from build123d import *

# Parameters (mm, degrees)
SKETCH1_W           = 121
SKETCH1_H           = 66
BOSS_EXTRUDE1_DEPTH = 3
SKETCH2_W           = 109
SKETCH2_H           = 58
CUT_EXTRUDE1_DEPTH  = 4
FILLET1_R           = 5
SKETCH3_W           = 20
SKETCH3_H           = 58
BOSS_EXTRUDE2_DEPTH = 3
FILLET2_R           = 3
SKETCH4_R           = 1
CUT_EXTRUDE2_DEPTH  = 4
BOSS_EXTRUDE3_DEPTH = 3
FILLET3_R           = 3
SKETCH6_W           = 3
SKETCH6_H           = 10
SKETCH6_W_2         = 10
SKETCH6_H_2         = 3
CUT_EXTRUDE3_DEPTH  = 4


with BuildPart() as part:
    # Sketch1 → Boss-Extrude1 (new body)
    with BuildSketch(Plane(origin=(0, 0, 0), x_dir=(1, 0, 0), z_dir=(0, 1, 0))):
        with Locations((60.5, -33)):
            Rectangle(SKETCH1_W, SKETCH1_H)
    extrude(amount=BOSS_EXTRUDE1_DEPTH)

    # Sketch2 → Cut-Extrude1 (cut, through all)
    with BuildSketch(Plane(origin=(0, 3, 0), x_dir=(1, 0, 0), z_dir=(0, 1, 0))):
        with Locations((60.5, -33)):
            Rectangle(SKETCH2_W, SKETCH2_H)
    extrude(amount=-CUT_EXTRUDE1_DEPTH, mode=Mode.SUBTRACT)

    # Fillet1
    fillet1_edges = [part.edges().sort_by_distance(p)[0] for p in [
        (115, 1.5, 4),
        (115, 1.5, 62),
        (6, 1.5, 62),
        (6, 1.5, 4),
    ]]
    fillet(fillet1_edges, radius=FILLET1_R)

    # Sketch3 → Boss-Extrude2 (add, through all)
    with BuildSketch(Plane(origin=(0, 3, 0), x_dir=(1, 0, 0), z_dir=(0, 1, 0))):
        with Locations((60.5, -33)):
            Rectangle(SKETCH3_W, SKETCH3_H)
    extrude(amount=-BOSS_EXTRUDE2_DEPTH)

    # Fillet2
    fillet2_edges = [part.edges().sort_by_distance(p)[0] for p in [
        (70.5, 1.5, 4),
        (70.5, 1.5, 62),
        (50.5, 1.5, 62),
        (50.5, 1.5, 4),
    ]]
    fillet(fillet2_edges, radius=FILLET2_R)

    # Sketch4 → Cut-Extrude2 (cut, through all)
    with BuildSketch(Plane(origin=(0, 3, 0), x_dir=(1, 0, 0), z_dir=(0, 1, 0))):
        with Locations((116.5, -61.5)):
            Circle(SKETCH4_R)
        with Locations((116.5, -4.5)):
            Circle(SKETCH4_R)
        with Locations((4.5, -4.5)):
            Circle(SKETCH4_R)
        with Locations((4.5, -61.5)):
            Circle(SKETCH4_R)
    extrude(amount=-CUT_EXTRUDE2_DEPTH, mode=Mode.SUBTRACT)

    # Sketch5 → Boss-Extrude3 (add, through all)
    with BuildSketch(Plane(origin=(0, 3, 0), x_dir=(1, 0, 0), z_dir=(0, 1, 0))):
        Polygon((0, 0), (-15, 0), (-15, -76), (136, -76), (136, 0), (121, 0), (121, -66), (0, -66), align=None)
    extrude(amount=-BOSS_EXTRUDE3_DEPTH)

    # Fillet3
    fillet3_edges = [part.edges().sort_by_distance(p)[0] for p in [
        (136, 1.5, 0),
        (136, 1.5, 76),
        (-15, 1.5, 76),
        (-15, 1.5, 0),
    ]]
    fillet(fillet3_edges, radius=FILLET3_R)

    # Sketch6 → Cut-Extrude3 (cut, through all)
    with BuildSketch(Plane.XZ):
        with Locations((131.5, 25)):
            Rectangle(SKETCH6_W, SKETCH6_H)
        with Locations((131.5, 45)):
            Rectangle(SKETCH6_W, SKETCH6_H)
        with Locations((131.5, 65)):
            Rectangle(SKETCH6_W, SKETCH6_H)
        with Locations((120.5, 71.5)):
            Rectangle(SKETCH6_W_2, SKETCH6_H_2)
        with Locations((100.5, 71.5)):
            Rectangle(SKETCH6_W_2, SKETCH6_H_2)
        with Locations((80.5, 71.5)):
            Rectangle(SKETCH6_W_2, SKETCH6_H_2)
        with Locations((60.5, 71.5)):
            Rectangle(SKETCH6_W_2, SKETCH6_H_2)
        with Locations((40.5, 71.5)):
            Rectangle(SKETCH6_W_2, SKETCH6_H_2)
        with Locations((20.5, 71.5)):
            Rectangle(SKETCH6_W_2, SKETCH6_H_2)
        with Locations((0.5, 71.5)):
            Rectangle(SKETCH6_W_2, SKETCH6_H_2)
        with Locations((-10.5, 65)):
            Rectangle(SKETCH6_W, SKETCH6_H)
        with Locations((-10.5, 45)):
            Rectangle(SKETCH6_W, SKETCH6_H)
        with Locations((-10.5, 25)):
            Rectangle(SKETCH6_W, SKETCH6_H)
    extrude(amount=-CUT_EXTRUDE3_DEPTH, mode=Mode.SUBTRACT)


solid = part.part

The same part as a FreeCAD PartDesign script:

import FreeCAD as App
import Part
import Sketcher
Q = App.Units.Quantity


def edges_at(feature, points):
    """Names of the edges that pass closest to the given points."""
    edges = feature.Shape.Edges
    near = lambda p: min(range(len(edges)), key=lambda i: edges[i].distToShape(Part.Vertex(*p))[0])
    return sorted({f"Edge{near(p) + 1}" for p in points})

doc = App.newDocument("Part")
body = doc.addObject("PartDesign::Body", "Body")

# Sketch on XZ plane
sketch1 = body.newObject("Sketcher::SketchObject", "Sketch")
sketch1.AttachmentSupport = (doc.getObject("XZ_Plane"), [""])
sketch1.MapMode = "FlatFace"
sketch1.addGeometry([
    Part.LineSegment(App.Vector(0, 0, 0), App.Vector(0, 66, 0)),
    Part.LineSegment(App.Vector(0, 66, 0), App.Vector(121, 66, 0)),
    Part.LineSegment(App.Vector(121, 66, 0), App.Vector(121, 0, 0)),
    Part.LineSegment(App.Vector(121, 0, 0), App.Vector(0, 0, 0)),
], False)
sketch1.addConstraint([
    Sketcher.Constraint("Coincident", 0, 2, 1, 1),
    Sketcher.Constraint("Coincident", 1, 2, 2, 1),
    Sketcher.Constraint("Coincident", 2, 2, 3, 1),
    Sketcher.Constraint("Coincident", 3, 2, 0, 1),
    Sketcher.Constraint("Vertical", 0),
    Sketcher.Constraint("Horizontal", 1),
    Sketcher.Constraint("Vertical", 2),
    Sketcher.Constraint("Horizontal", 3),
    Sketcher.Constraint("Coincident", 3, 2, -1, 1),
    Sketcher.Constraint("DistanceX", 1, 1, 1, 2, Q("121 mm")),
    Sketcher.Constraint("DistanceY", 0, 1, 0, 2, Q("66 mm")),
])
pad1 = body.newObject("PartDesign::Pad", "Pad")
pad1.Profile = sketch1
pad1.Length = 3
pad1.Reversed = True

# Sketch on XZ plane
sketch2 = body.newObject("Sketcher::SketchObject", "Sketch001")
sketch2.AttachmentSupport = (doc.getObject("XZ_Plane"), [""])
sketch2.MapMode = "FlatFace"
sketch2.AttachmentOffset = App.Placement(App.Vector(0, 0, -3), App.Rotation())
sketch2.addGeometry([
    Part.LineSegment(App.Vector(6, 4, 0), App.Vector(6, 62, 0)),
    Part.LineSegment(App.Vector(6, 62, 0), App.Vector(115, 62, 0)),
    Part.LineSegment(App.Vector(115, 62, 0), App.Vector(115, 4, 0)),
    Part.LineSegment(App.Vector(115, 4, 0), App.Vector(6, 4, 0)),
], False)
sketch2.addConstraint([
    Sketcher.Constraint("Coincident", 0, 2, 1, 1),
    Sketcher.Constraint("Coincident", 1, 2, 2, 1),
    Sketcher.Constraint("Coincident", 2, 2, 3, 1),
    Sketcher.Constraint("Coincident", 3, 2, 0, 1),
    Sketcher.Constraint("Vertical", 0),
    Sketcher.Constraint("Horizontal", 1),
    Sketcher.Constraint("Vertical", 2),
    Sketcher.Constraint("Horizontal", 3),
    Sketcher.Constraint("DistanceX", 1, 1, 1, 2, Q("109 mm")),
    Sketcher.Constraint("DistanceY", 0, 1, 0, 2, Q("58 mm")),
    Sketcher.Constraint("DistanceX", -1, 1, 0, 2, Q("6 mm")),
    Sketcher.Constraint("DistanceY", -1, 1, 0, 2, Q("62 mm")),
])
pocket1 = body.newObject("PartDesign::Pocket", "Pocket")
pocket1.Profile = sketch2
pocket1.Type = "ThroughAll"
pocket1.Reversed = True
doc.recompute()

fillet = body.newObject("PartDesign::Fillet", "Fillet")
fillet.Base = (pocket1, edges_at(pocket1, [
    (115, 1.5, 4),
    (115, 1.5, 62),
    (6, 1.5, 62),
    (6, 1.5, 4),
]))
fillet.Radius = 5

# Sketch on XZ plane
sketch3 = body.newObject("Sketcher::SketchObject", "Sketch002")
sketch3.AttachmentSupport = (doc.getObject("XZ_Plane"), [""])
sketch3.MapMode = "FlatFace"
sketch3.AttachmentOffset = App.Placement(App.Vector(0, 0, -3), App.Rotation())
sketch3.addGeometry([
    Part.LineSegment(App.Vector(50, 4, 0), App.Vector(50, 62, 0)),
    Part.LineSegment(App.Vector(50, 62, 0), App.Vector(70, 62, 0)),
    Part.LineSegment(App.Vector(70, 62, 0), App.Vector(70, 4, 0)),
    Part.LineSegment(App.Vector(70, 4, 0), App.Vector(50, 4, 0)),
], False)
sketch3.addConstraint([
    Sketcher.Constraint("Coincident", 0, 2, 1, 1),
    Sketcher.Constraint("Coincident", 1, 2, 2, 1),
    Sketcher.Constraint("Coincident", 2, 2, 3, 1),
    Sketcher.Constraint("Coincident", 3, 2, 0, 1),
    Sketcher.Constraint("Vertical", 0),
    Sketcher.Constraint("Horizontal", 1),
    Sketcher.Constraint("Vertical", 2),
    Sketcher.Constraint("Horizontal", 3),
    Sketcher.Constraint("DistanceX", 1, 1, 1, 2, Q("20 mm")),
    Sketcher.Constraint("DistanceY", 0, 1, 0, 2, Q("58 mm")),
    Sketcher.Constraint("DistanceY", -1, 1, 0, 2, Q("62 mm")),
    Sketcher.Constraint("DistanceX", -1, 1, 0, 2, Q("50.5 mm")),
])
pad2 = body.newObject("PartDesign::Pad", "Pad001")
pad2.Profile = sketch3
pad2.Length = 3
doc.recompute()

fillet2 = body.newObject("PartDesign::Fillet", "Fillet001")
fillet2.Base = (pad2, edges_at(pad2, [
    (70.5, 1.5, 4),
    (70.5, 1.5, 62),
    (50.5, 1.5, 62),
    (50.5, 1.5, 4),
]))
fillet2.Radius = 3

# Sketch on XZ plane
sketch4 = body.newObject("Sketcher::SketchObject", "Sketch003")
sketch4.AttachmentSupport = (doc.getObject("XZ_Plane"), [""])
sketch4.MapMode = "FlatFace"
sketch4.AttachmentOffset = App.Placement(App.Vector(0, 0, -3), App.Rotation())
sketch4.addGeometry([
    Part.Circle(App.Vector(116.5, 61.5, 0), App.Vector(0, 0, 1), 1),
    Part.Circle(App.Vector(116.5, 4.5, 0), App.Vector(0, 0, 1), 1),
    Part.Circle(App.Vector(4.5, 4.5, 0), App.Vector(0, 0, 1), 1),
    Part.Circle(App.Vector(4.5, 61.5, 0), App.Vector(0, 0, 1), 1),
], False)
sketch4.addConstraint([
    Sketcher.Constraint("Equal", 0, 1),
    Sketcher.Constraint("Equal", 1, 2),
    Sketcher.Constraint("Equal", 2, 3),
    Sketcher.Constraint("Horizontal", 1, 3, 2, 3),
    Sketcher.Constraint("Horizontal", 0, 3, 3, 3),
    Sketcher.Constraint("Vertical", 0, 3, 1, 3),
    Sketcher.Constraint("Vertical", 2, 3, 3, 3),
    Sketcher.Constraint("Diameter", 0, Q("2 mm")),
    Sketcher.Constraint("DistanceY", 1, 3, 0, 3, Q("57 mm")),
    Sketcher.Constraint("DistanceX", 2, 3, 1, 3, Q("112 mm")),
    Sketcher.Constraint("DistanceX", -1, 1, 0, 3, Q("116.5 mm")),
    Sketcher.Constraint("DistanceY", -1, 1, 0, 3, Q("61.5 mm")),
])
pocket2 = body.newObject("PartDesign::Pocket", "Pocket001")
pocket2.Profile = sketch4
pocket2.Type = "ThroughAll"
pocket2.Reversed = True

# Sketch on XZ plane
sketch5 = body.newObject("Sketcher::SketchObject", "Sketch004")
sketch5.AttachmentSupport = (doc.getObject("XZ_Plane"), [""])
sketch5.MapMode = "FlatFace"
sketch5.AttachmentOffset = App.Placement(App.Vector(0, 0, -3), App.Rotation())
sketch5.addGeometry([
    Part.LineSegment(App.Vector(0, 0, 0), App.Vector(-15, 0, 0)),  # 0
    Part.LineSegment(App.Vector(-15, 0, 0), App.Vector(-15, 76, 0)),  # 1
    Part.LineSegment(App.Vector(-15, 76, 0), App.Vector(136, 76, 0)),  # 2
    Part.LineSegment(App.Vector(136, 76, 0), App.Vector(136, 0, 0)),  # 3
    Part.LineSegment(App.Vector(136, 0, 0), App.Vector(121, 0, 0)),  # 4
    Part.LineSegment(App.Vector(121, 0, 0), App.Vector(121, 66, 0)),  # 5
    Part.LineSegment(App.Vector(121, 66, 0), App.Vector(0, 66, 0)),  # 6
    Part.LineSegment(App.Vector(0, 66, 0), App.Vector(0, 0, 0)),  # 7
], False)
sketch5.addConstraint([
    Sketcher.Constraint("Coincident", 0, 2, 1, 1),
    Sketcher.Constraint("Coincident", 1, 2, 2, 1),
    Sketcher.Constraint("Coincident", 2, 2, 3, 1),
    Sketcher.Constraint("Coincident", 3, 2, 4, 1),
    Sketcher.Constraint("Coincident", 4, 2, 5, 1),
    Sketcher.Constraint("Coincident", 5, 2, 6, 1),
    Sketcher.Constraint("Coincident", 6, 2, 7, 1),
    Sketcher.Constraint("Coincident", 7, 2, 0, 1),
    Sketcher.Constraint("Horizontal", 0),
    Sketcher.Constraint("Vertical", 1),
    Sketcher.Constraint("Horizontal", 2),
    Sketcher.Constraint("Vertical", 3),
    Sketcher.Constraint("Horizontal", 4),
    Sketcher.Constraint("Vertical", 5),
    Sketcher.Constraint("Horizontal", 6),
    Sketcher.Constraint("Vertical", 7),
    Sketcher.Constraint("Coincident", 7, 2, -1, 1),
    Sketcher.Constraint("PointOnObject", 3, 2, -1),
    Sketcher.Constraint("Equal", 0, 4),
    Sketcher.Constraint("DistanceX", 0, 2, 0, 1, Q("15 mm")),
    Sketcher.Constraint("DistanceX", 2, 1, 2, 2, Q("151 mm")),
    Sketcher.Constraint("DistanceY", 1, 1, 1, 2, Q("76 mm")),
    Sketcher.Constraint("DistanceY", 5, 1, 5, 2, Q("66 mm")),
])
pad3 = body.newObject("PartDesign::Pad", "Pad002")
pad3.Profile = sketch5
pad3.Type = "UpToLast"
doc.recompute()

fillet3 = body.newObject("PartDesign::Fillet", "Fillet002")
fillet3.Base = (pad3, edges_at(pad3, [
    (136, 1.5, 0),
    (136, 1.5, 76),
    (-15, 1.5, 76),
    (-15, 1.5, 0),
]))
fillet3.Radius = 3

# Sketch on XZ plane
sketch6 = body.newObject("Sketcher::SketchObject", "Sketch005")
sketch6.AttachmentSupport = (doc.getObject("XZ_Plane"), [""])
sketch6.MapMode = "FlatFace"
sketch6.addGeometry([
    Part.LineSegment(App.Vector(130, 30, 0), App.Vector(130, 20, 0)),  # 0
    Part.LineSegment(App.Vector(130, 20, 0), App.Vector(133, 20, 0)),  # 1
    Part.LineSegment(App.Vector(133, 20, 0), App.Vector(133, 30, 0)),  # 2
    Part.LineSegment(App.Vector(133, 30, 0), App.Vector(130, 30, 0)),  # 3
    Part.LineSegment(App.Vector(130, 50, 0), App.Vector(130, 40, 0)),  # 4
    Part.LineSegment(App.Vector(130, 40, 0), App.Vector(133, 40, 0)),  # 5
    Part.LineSegment(App.Vector(133, 40, 0), App.Vector(133, 50, 0)),  # 6
    Part.LineSegment(App.Vector(133, 50, 0), App.Vector(130, 50, 0)),  # 7
    Part.LineSegment(App.Vector(130, 70, 0), App.Vector(130, 60, 0)),  # 8
    Part.LineSegment(App.Vector(130, 60, 0), App.Vector(133, 60, 0)),  # 9
    Part.LineSegment(App.Vector(133, 60, 0), App.Vector(133, 70, 0)),  # 10
    Part.LineSegment(App.Vector(133, 70, 0), App.Vector(130, 70, 0)),  # 11
    Part.LineSegment(App.Vector(115.5, 73, 0), App.Vector(115.5, 70, 0)),  # 12
    Part.LineSegment(App.Vector(115.5, 70, 0), App.Vector(125.5, 70, 0)),  # 13
    Part.LineSegment(App.Vector(125.5, 70, 0), App.Vector(125.5, 73, 0)),  # 14
    Part.LineSegment(App.Vector(125.5, 73, 0), App.Vector(115.5, 73, 0)),  # 15
    Part.LineSegment(App.Vector(95.5, 73, 0), App.Vector(95.5, 70, 0)),  # 16
    Part.LineSegment(App.Vector(95.5, 70, 0), App.Vector(105.5, 70, 0)),  # 17
    Part.LineSegment(App.Vector(105.5, 70, 0), App.Vector(105.5, 73, 0)),  # 18
    Part.LineSegment(App.Vector(105.5, 73, 0), App.Vector(95.5, 73, 0)),  # 19
    Part.LineSegment(App.Vector(75.5, 73, 0), App.Vector(75.5, 70, 0)),  # 20
    Part.LineSegment(App.Vector(75.5, 70, 0), App.Vector(85.5, 70, 0)),  # 21
    Part.LineSegment(App.Vector(85.5, 70, 0), App.Vector(85.5, 73, 0)),  # 22
    Part.LineSegment(App.Vector(85.5, 73, 0), App.Vector(75.5, 73, 0)),  # 23
    Part.LineSegment(App.Vector(55.5, 73, 0), App.Vector(55.5, 70, 0)),  # 24
    Part.LineSegment(App.Vector(55.5, 70, 0), App.Vector(65.5, 70, 0)),  # 25
    Part.LineSegment(App.Vector(65.5, 70, 0), App.Vector(65.5, 73, 0)),  # 26
    Part.LineSegment(App.Vector(65.5, 73, 0), App.Vector(55.5, 73, 0)),  # 27
    Part.LineSegment(App.Vector(35.5, 73, 0), App.Vector(35.5, 70, 0)),  # 28
    Part.LineSegment(App.Vector(35.5, 70, 0), App.Vector(45.5, 70, 0)),  # 29
    Part.LineSegment(App.Vector(45.5, 70, 0), App.Vector(45.5, 73, 0)),  # 30
    Part.LineSegment(App.Vector(45.5, 73, 0), App.Vector(35.5, 73, 0)),  # 31
    Part.LineSegment(App.Vector(15.5, 73, 0), App.Vector(15.5, 70, 0)),  # 32
    Part.LineSegment(App.Vector(15.5, 70, 0), App.Vector(25.5, 70, 0)),  # 33
    Part.LineSegment(App.Vector(25.5, 70, 0), App.Vector(25.5, 73, 0)),  # 34
    Part.LineSegment(App.Vector(25.5, 73, 0), App.Vector(15.5, 73, 0)),  # 35
    Part.LineSegment(App.Vector(-4.5, 73, 0), App.Vector(-4.5, 70, 0)),  # 36
    Part.LineSegment(App.Vector(-4.5, 70, 0), App.Vector(5.5, 70, 0)),  # 37
    Part.LineSegment(App.Vector(5.5, 70, 0), App.Vector(5.5, 73, 0)),  # 38
    Part.LineSegment(App.Vector(5.5, 73, 0), App.Vector(-4.5, 73, 0)),  # 39
    Part.LineSegment(App.Vector(-12, 70, 0), App.Vector(-12, 60, 0)),  # 40
    Part.LineSegment(App.Vector(-12, 60, 0), App.Vector(-9, 60, 0)),  # 41
    Part.LineSegment(App.Vector(-9, 60, 0), App.Vector(-9, 70, 0)),  # 42
    Part.LineSegment(App.Vector(-9, 70, 0), App.Vector(-12, 70, 0)),  # 43
    Part.LineSegment(App.Vector(-12, 50, 0), App.Vector(-12, 40, 0)),  # 44
    Part.LineSegment(App.Vector(-12, 40, 0), App.Vector(-9, 40, 0)),  # 45
    Part.LineSegment(App.Vector(-9, 40, 0), App.Vector(-9, 50, 0)),  # 46
    Part.LineSegment(App.Vector(-9, 50, 0), App.Vector(-12, 50, 0)),  # 47
    Part.LineSegment(App.Vector(-12, 30, 0), App.Vector(-12, 20, 0)),  # 48
    Part.LineSegment(App.Vector(-12, 20, 0), App.Vector(-9, 20, 0)),  # 49
    Part.LineSegment(App.Vector(-9, 20, 0), App.Vector(-9, 30, 0)),  # 50
    Part.LineSegment(App.Vector(-9, 30, 0), App.Vector(-12, 30, 0)),  # 51
], False)
sketch6.addConstraint([
    Sketcher.Constraint("Coincident", 0, 2, 1, 1),
    Sketcher.Constraint("Coincident", 1, 2, 2, 1),
    Sketcher.Constraint("Coincident", 2, 2, 3, 1),
    Sketcher.Constraint("Coincident", 3, 2, 0, 1),
    Sketcher.Constraint("Coincident", 4, 2, 5, 1),
    Sketcher.Constraint("Coincident", 5, 2, 6, 1),
    Sketcher.Constraint("Coincident", 6, 2, 7, 1),
    Sketcher.Constraint("Coincident", 7, 2, 4, 1),
    Sketcher.Constraint("Coincident", 8, 2, 9, 1),
    Sketcher.Constraint("Coincident", 9, 2, 10, 1),
    Sketcher.Constraint("Coincident", 10, 2, 11, 1),
    Sketcher.Constraint("Coincident", 11, 2, 8, 1),
    Sketcher.Constraint("Coincident", 12, 2, 13, 1),
    Sketcher.Constraint("Coincident", 13, 2, 14, 1),
    Sketcher.Constraint("Coincident", 14, 2, 15, 1),
    Sketcher.Constraint("Coincident", 15, 2, 12, 1),
    Sketcher.Constraint("Coincident", 16, 2, 17, 1),
    Sketcher.Constraint("Coincident", 17, 2, 18, 1),
    Sketcher.Constraint("Coincident", 18, 2, 19, 1),
    Sketcher.Constraint("Coincident", 19, 2, 16, 1),
    Sketcher.Constraint("Coincident", 20, 2, 21, 1),
    Sketcher.Constraint("Coincident", 21, 2, 22, 1),
    Sketcher.Constraint("Coincident", 22, 2, 23, 1),
    Sketcher.Constraint("Coincident", 23, 2, 20, 1),
    Sketcher.Constraint("Coincident", 24, 2, 25, 1),
    Sketcher.Constraint("Coincident", 25, 2, 26, 1),
    Sketcher.Constraint("Coincident", 26, 2, 27, 1),
    Sketcher.Constraint("Coincident", 27, 2, 24, 1),
    Sketcher.Constraint("Coincident", 28, 2, 29, 1),
    Sketcher.Constraint("Coincident", 29, 2, 30, 1),
    Sketcher.Constraint("Coincident", 30, 2, 31, 1),
    Sketcher.Constraint("Coincident", 31, 2, 28, 1),
    Sketcher.Constraint("Coincident", 32, 2, 33, 1),
    Sketcher.Constraint("Coincident", 33, 2, 34, 1),
    Sketcher.Constraint("Coincident", 34, 2, 35, 1),
    Sketcher.Constraint("Coincident", 35, 2, 32, 1),
    Sketcher.Constraint("Coincident", 36, 2, 37, 1),
    Sketcher.Constraint("Coincident", 37, 2, 38, 1),
    Sketcher.Constraint("Coincident", 38, 2, 39, 1),
    Sketcher.Constraint("Coincident", 39, 2, 36, 1),
    Sketcher.Constraint("Coincident", 40, 2, 41, 1),
    Sketcher.Constraint("Coincident", 41, 2, 42, 1),
    Sketcher.Constraint("Coincident", 42, 2, 43, 1),
    Sketcher.Constraint("Coincident", 43, 2, 40, 1),
    Sketcher.Constraint("Coincident", 44, 2, 45, 1),
    Sketcher.Constraint("Coincident", 45, 2, 46, 1),
    Sketcher.Constraint("Coincident", 46, 2, 47, 1),
    Sketcher.Constraint("Coincident", 47, 2, 44, 1),
    Sketcher.Constraint("Coincident", 48, 2, 49, 1),
    Sketcher.Constraint("Coincident", 49, 2, 50, 1),
    Sketcher.Constraint("Coincident", 50, 2, 51, 1),
    Sketcher.Constraint("Coincident", 51, 2, 48, 1),
    Sketcher.Constraint("Vertical", 0),
    Sketcher.Constraint("Horizontal", 1),
    Sketcher.Constraint("Vertical", 2),
    Sketcher.Constraint("Horizontal", 3),
    Sketcher.Constraint("Vertical", 4),
    Sketcher.Constraint("Horizontal", 5),
    Sketcher.Constraint("Vertical", 6),
    Sketcher.Constraint("Horizontal", 7),
    Sketcher.Constraint("Vertical", 8),
    Sketcher.Constraint("Horizontal", 9),
    Sketcher.Constraint("Vertical", 10),
    Sketcher.Constraint("Horizontal", 11),
    Sketcher.Constraint("Vertical", 12),
    Sketcher.Constraint("Horizontal", 13),
    Sketcher.Constraint("Vertical", 14),
    Sketcher.Constraint("Horizontal", 15),
    Sketcher.Constraint("Vertical", 16),
    Sketcher.Constraint("Horizontal", 17),
    Sketcher.Constraint("Vertical", 18),
    Sketcher.Constraint("Horizontal", 19),
    Sketcher.Constraint("Vertical", 20),
    Sketcher.Constraint("Horizontal", 21),
    Sketcher.Constraint("Vertical", 22),
    Sketcher.Constraint("Horizontal", 23),
    Sketcher.Constraint("Vertical", 24),
    Sketcher.Constraint("Horizontal", 25),
    Sketcher.Constraint("Vertical", 26),
    Sketcher.Constraint("Horizontal", 27),
    Sketcher.Constraint("Vertical", 28),
    Sketcher.Constraint("Horizontal", 29),
    Sketcher.Constraint("Vertical", 30),
    Sketcher.Constraint("Horizontal", 31),
    Sketcher.Constraint("Vertical", 32),
    Sketcher.Constraint("Horizontal", 33),
    Sketcher.Constraint("Vertical", 34),
    Sketcher.Constraint("Horizontal", 35),
    Sketcher.Constraint("Vertical", 36),
    Sketcher.Constraint("Horizontal", 37),
    Sketcher.Constraint("Vertical", 38),
    Sketcher.Constraint("Horizontal", 39),
    Sketcher.Constraint("Vertical", 40),
    Sketcher.Constraint("Horizontal", 41),
    Sketcher.Constraint("Vertical", 42),
    Sketcher.Constraint("Horizontal", 43),
    Sketcher.Constraint("Vertical", 44),
    Sketcher.Constraint("Horizontal", 45),
    Sketcher.Constraint("Vertical", 46),
    Sketcher.Constraint("Horizontal", 47),
    Sketcher.Constraint("Vertical", 48),
    Sketcher.Constraint("Horizontal", 49),
    Sketcher.Constraint("Vertical", 50),
    Sketcher.Constraint("Horizontal", 51),
    Sketcher.Constraint("Horizontal", 11, 2, 12, 2),
    Sketcher.Constraint("Horizontal", 13, 2, 16, 2),
    Sketcher.Constraint("Horizontal", 15, 2, 18, 2),
    Sketcher.Constraint("Horizontal", 17, 2, 20, 2),
    Sketcher.Constraint("Horizontal", 19, 2, 22, 2),
    Sketcher.Constraint("Horizontal", 21, 2, 24, 2),
    Sketcher.Constraint("Horizontal", 23, 2, 26, 2),
    Sketcher.Constraint("Horizontal", 25, 2, 28, 2),
    Sketcher.Constraint("Horizontal", 27, 2, 30, 2),
    Sketcher.Constraint("Horizontal", 29, 2, 32, 2),
    Sketcher.Constraint("Horizontal", 31, 2, 34, 2),
    Sketcher.Constraint("Horizontal", 33, 2, 36, 2),
    Sketcher.Constraint("Horizontal", 35, 2, 38, 2),
    Sketcher.Constraint("Horizontal", 9, 2, 40, 2),
    Sketcher.Constraint("Horizontal", 37, 2, 42, 2),
    Sketcher.Constraint("Horizontal", 5, 2, 44, 2),
    Sketcher.Constraint("Horizontal", 7, 2, 46, 2),
    Sketcher.Constraint("Horizontal", 1, 2, 48, 2),
    Sketcher.Constraint("Horizontal", 3, 2, 50, 2),
    Sketcher.Constraint("Vertical", 3, 2, 4, 2),
    Sketcher.Constraint("Vertical", 2, 2, 5, 2),
    Sketcher.Constraint("Vertical", 7, 2, 8, 2),
    Sketcher.Constraint("Vertical", 6, 2, 9, 2),
    Sketcher.Constraint("Vertical", 43, 2, 44, 2),
    Sketcher.Constraint("Vertical", 42, 2, 45, 2),
    Sketcher.Constraint("Vertical", 47, 2, 48, 2),
    Sketcher.Constraint("Vertical", 46, 2, 49, 2),
    Sketcher.Constraint("Equal", 15, 17),
    Sketcher.Constraint("Equal", 19, 21),
    Sketcher.Constraint("Equal", 23, 25),
    Sketcher.Constraint("Equal", 27, 29),
    Sketcher.Constraint("Equal", 31, 33),
    Sketcher.Constraint("Equal", 35, 37),
    Sketcher.Constraint("Equal", 11, 41),
    Sketcher.Constraint("Equal", 39, 0),
    Sketcher.Constraint("Equal", 2, 4),
    Sketcher.Constraint("Equal", 6, 8),
    Sketcher.Constraint("Equal", 51, 12),
    Sketcher.Constraint("DistanceX", 1, 1, 1, 2, Q("3 mm")),
    Sketcher.Constraint("DistanceX", 13, 1, 13, 2, Q("10 mm")),
    Sketcher.Constraint("DistanceX", -1, 1, 0, 2, Q("130 mm")),
    Sketcher.Constraint("DistanceY", -1, 1, 0, 2, Q("20 mm")),
    Sketcher.Constraint("DistanceY", -1, 1, 4, 2, Q("40 mm")),
    Sketcher.Constraint("DistanceY", -1, 1, 8, 2, Q("60 mm")),
    Sketcher.Constraint("DistanceX", 40, 2, -1, 1, Q("12 mm")),
    Sketcher.Constraint("DistanceX", 16, 2, 12, 2, Q("20 mm")),
    Sketcher.Constraint("DistanceX", 20, 2, 16, 2, Q("20 mm")),
    Sketcher.Constraint("DistanceX", 24, 2, 20, 2, Q("20 mm")),
    Sketcher.Constraint("DistanceX", 28, 2, 24, 2, Q("20 mm")),
    Sketcher.Constraint("DistanceX", 32, 2, 28, 2, Q("20 mm")),
    Sketcher.Constraint("DistanceX", 36, 2, 32, 2, Q("20 mm")),
    Sketcher.Constraint("DistanceX", -1, 1, 12, 2, Q("115.5 mm")),
])
pocket3 = body.newObject("PartDesign::Pocket", "Pocket002")
pocket3.Profile = sketch6
pocket3.Type = "ThroughAll"

doc.recompute()
